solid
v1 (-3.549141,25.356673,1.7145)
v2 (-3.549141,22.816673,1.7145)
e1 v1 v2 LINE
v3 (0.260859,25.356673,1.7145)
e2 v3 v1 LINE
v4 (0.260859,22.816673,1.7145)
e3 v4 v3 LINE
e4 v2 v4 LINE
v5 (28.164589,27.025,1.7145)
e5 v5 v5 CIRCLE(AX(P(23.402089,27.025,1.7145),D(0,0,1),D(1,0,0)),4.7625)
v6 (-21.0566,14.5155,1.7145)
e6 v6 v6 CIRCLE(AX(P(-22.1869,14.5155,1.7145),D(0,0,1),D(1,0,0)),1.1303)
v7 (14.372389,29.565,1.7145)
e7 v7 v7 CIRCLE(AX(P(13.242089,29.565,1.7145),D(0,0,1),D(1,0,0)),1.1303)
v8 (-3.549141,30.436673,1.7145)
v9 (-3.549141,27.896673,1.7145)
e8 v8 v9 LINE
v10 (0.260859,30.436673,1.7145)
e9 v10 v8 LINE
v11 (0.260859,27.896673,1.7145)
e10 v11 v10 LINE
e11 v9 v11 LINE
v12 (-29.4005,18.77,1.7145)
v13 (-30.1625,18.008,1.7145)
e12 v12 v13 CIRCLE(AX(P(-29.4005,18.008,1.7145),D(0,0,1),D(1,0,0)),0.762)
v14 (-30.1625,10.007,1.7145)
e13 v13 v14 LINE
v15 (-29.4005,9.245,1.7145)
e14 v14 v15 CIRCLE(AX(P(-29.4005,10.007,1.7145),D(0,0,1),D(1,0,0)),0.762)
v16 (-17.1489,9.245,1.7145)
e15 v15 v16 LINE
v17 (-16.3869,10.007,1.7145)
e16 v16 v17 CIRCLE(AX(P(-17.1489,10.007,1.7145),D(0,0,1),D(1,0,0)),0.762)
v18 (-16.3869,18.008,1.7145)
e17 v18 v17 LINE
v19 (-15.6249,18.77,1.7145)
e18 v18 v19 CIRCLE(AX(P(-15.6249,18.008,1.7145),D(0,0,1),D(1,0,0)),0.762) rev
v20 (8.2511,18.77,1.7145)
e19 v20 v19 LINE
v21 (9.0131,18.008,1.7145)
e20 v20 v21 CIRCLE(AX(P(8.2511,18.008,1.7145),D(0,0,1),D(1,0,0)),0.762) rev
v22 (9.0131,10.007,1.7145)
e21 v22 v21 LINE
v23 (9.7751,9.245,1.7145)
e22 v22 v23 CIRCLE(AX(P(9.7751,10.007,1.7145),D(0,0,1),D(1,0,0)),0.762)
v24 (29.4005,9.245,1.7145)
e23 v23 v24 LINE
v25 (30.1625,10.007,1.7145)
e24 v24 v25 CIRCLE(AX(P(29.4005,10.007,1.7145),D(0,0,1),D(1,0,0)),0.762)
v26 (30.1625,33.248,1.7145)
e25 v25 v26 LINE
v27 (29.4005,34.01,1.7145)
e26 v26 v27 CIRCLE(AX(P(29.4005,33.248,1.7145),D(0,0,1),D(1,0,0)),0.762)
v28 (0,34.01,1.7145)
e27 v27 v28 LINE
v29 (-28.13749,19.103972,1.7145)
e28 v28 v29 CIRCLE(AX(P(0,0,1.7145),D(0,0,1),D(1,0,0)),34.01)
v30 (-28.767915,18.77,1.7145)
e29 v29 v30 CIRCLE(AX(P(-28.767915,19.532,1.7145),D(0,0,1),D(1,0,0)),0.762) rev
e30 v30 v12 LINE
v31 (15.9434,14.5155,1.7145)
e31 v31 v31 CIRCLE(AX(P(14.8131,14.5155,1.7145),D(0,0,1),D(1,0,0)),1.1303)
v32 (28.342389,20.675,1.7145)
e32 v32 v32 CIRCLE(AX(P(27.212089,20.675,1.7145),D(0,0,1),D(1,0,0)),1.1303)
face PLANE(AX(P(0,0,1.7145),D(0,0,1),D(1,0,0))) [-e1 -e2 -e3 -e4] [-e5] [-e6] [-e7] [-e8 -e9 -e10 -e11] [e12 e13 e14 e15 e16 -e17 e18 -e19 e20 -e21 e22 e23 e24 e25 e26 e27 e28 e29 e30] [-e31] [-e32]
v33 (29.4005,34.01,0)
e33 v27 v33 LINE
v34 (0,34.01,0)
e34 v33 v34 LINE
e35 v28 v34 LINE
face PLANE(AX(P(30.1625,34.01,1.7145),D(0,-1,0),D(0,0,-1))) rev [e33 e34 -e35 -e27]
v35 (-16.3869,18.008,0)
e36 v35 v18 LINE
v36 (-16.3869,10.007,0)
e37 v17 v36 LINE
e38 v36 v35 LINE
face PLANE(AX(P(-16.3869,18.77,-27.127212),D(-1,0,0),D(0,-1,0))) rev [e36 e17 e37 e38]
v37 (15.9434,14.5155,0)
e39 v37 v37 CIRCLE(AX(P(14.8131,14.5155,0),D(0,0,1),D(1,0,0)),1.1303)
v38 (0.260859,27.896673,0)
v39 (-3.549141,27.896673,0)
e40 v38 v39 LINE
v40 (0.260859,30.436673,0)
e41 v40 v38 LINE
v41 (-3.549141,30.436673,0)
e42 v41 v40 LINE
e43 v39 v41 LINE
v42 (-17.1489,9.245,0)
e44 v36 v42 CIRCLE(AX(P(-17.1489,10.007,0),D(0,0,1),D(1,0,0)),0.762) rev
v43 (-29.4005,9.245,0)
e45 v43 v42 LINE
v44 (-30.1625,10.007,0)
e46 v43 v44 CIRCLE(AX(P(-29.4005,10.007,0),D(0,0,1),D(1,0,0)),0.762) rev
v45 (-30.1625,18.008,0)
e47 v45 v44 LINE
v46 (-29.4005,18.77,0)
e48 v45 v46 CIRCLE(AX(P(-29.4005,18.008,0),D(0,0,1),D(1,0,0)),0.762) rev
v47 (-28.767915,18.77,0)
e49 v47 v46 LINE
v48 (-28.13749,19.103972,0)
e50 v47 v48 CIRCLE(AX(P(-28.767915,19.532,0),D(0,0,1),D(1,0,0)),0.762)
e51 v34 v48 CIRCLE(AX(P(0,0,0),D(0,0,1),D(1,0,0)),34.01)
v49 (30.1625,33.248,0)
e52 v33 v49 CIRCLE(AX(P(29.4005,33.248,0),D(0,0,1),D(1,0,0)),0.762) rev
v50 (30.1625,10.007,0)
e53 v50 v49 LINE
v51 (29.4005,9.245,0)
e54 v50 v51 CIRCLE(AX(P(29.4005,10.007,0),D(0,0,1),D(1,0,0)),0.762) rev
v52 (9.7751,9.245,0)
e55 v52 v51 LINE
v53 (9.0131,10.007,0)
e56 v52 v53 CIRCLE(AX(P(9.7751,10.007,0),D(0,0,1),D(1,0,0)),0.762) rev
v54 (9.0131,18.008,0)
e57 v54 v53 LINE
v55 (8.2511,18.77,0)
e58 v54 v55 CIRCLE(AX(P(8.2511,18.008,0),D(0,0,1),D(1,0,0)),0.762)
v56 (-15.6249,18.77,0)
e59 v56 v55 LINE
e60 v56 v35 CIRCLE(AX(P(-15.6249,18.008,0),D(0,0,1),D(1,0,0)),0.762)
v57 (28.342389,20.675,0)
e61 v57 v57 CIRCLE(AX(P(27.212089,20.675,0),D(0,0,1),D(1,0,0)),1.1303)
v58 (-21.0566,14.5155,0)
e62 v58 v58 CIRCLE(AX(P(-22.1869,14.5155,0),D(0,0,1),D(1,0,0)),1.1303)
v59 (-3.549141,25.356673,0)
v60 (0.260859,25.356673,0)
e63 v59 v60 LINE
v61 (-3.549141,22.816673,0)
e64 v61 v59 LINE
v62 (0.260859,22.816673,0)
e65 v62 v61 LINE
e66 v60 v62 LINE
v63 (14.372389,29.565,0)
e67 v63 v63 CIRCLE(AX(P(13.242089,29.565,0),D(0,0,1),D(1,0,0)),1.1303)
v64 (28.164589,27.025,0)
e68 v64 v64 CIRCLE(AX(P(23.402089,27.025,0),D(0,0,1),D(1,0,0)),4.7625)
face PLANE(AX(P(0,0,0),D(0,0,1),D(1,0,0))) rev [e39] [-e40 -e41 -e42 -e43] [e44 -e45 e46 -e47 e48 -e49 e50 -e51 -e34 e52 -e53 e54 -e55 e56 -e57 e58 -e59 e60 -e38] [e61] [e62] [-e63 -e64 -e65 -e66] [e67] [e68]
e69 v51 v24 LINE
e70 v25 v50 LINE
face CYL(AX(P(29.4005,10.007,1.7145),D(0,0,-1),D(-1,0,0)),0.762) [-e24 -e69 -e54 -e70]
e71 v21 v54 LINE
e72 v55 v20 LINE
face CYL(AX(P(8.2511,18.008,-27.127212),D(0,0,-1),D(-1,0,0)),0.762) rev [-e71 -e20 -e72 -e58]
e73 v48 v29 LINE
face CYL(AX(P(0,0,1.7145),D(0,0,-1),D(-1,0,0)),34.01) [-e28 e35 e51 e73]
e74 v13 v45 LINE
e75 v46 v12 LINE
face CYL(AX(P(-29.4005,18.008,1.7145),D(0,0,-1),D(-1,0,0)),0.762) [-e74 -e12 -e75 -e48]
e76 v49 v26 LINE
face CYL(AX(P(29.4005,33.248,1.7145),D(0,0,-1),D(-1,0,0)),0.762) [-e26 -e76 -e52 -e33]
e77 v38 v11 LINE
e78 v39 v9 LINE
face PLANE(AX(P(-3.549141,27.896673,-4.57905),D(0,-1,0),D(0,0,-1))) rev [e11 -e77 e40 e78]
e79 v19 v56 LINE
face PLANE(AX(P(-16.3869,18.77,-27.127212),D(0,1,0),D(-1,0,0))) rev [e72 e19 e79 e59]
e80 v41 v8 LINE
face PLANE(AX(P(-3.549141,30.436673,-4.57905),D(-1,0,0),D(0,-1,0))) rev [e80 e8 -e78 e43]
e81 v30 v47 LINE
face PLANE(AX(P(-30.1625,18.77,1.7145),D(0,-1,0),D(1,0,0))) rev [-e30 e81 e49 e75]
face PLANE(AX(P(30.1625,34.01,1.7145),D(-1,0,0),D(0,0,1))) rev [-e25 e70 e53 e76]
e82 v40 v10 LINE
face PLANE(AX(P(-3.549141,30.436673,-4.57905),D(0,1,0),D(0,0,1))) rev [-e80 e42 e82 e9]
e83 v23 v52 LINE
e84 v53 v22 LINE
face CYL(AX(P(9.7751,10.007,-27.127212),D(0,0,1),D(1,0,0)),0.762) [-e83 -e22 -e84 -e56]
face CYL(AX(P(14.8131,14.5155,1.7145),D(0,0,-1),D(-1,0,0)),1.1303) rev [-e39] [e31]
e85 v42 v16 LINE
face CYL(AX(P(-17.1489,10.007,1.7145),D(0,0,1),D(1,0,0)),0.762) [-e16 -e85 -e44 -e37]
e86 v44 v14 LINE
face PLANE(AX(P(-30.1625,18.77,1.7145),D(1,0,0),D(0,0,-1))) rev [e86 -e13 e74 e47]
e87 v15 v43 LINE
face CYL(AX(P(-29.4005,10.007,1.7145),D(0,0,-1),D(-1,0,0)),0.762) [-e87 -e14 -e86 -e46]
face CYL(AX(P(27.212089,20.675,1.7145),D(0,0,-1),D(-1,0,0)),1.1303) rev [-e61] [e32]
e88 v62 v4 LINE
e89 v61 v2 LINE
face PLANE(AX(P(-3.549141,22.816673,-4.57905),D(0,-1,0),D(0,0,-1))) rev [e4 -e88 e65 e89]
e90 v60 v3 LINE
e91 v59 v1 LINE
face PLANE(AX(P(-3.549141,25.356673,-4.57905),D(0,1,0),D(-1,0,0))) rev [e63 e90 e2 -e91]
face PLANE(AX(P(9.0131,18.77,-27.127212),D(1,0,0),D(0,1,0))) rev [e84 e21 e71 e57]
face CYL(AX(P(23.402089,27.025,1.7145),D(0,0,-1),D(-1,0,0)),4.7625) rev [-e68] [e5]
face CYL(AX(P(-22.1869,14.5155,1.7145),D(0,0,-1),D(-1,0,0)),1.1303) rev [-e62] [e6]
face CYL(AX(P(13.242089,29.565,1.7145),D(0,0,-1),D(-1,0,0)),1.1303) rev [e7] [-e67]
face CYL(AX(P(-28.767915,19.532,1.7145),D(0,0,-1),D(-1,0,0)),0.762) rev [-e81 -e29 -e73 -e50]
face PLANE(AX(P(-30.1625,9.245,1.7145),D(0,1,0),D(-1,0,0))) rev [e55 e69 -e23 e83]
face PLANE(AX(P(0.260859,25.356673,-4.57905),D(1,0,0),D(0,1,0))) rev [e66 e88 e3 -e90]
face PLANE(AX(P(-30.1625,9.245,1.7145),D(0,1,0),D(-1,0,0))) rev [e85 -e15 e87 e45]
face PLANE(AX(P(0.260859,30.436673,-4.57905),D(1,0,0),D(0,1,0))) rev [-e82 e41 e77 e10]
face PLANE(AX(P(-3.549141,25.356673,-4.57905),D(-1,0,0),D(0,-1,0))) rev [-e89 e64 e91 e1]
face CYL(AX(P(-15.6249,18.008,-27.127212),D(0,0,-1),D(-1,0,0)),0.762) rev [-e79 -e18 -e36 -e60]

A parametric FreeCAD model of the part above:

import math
import FreeCAD as App
import Part
import Sketcher

V = App.Vector
Q = App.Units.Quantity


def edges_at(feature, points):
    """Names of the edges that pass closest to the given points."""
    edges = feature.Shape.Edges
    near = lambda p: min(range(len(edges)), key=lambda i: edges[i].distToShape(Part.Vertex(*p))[0])
    return sorted({f"Edge{near(p) + 1}" for p in points})


def add_polygon(sketch, points):
    """Adds a closed chain of lines whose ends are joined by coincident constraints."""
    first, n = sketch.GeometryCount, len(points)
    for a, b in zip(points, points[1:] + points[:1]):
        sketch.addGeometry(Part.LineSegment(App.Vector(*a, 0), App.Vector(*b, 0)), False)
    for i in range(n):
        sketch.addConstraint(Sketcher.Constraint("Coincident", first + i, 2, first + (i + 1) % n, 1))

doc = App.newDocument("Part")
body = doc.addObject("PartDesign::Body", "Body")

# Sketch on XY plane
sketch1 = body.newObject("Sketcher::SketchObject", "Sketch")
sketch1.AttachmentSupport = (doc.getObject("XY_Plane"), [""])
sketch1.MapMode = "FlatFace"
sketch1.addGeometry([
    Part.LineSegment(V(-30.2, 9.2, 0), V(30.2, 9.2, 0)),  # 0
    Part.LineSegment(V(30.2, 9.2, 0), V(30.2, 34, 0)),  # 1
    Part.LineSegment(V(30.2, 34, 0), V(0, 34, 0)),  # 2
    Part.ArcOfCircle(Part.Circle(V(0, 0, 0), V(0, 0, 1), 34), math.radians(90), math.radians(147)),  # 3
    Part.LineSegment(V(-28.4, 18.8, 0), V(-30.2, 18.8, 0)),  # 4
    Part.LineSegment(V(-30.2, 18.8, 0), V(-30.2, 9.2, 0)),  # 5
    Part.Circle(V(-22.2, 14.5, 0), V(0, 0, 1), 1.1),  # 6
    Part.Circle(V(14.8, 14.5, 0), V(0, 0, 1), 1.1),  # 7
    Part.Circle(V(27.2, 20.7, 0), V(0, 0, 1), 1.1),  # 8
    Part.Circle(V(23.4, 27, 0), V(0, 0, 1), 4.8),  # 9
    Part.Circle(V(13.2, 29.6, 0), V(0, 0, 1), 1.1),  # 10
], False)
sketch1.addConstraint([
    Sketcher.Constraint("Coincident", 0, 2, 1, 1),
    Sketcher.Constraint("Coincident", 1, 2, 2, 1),
    Sketcher.Constraint("Tangent", 2, 2, 3, 1),
    Sketcher.Constraint("Coincident", 3, 2, 4, 1),
    Sketcher.Constraint("Coincident", 4, 2, 5, 1),
    Sketcher.Constraint("Coincident", 5, 2, 0, 1),
    Sketcher.Constraint("Horizontal", 0),
    Sketcher.Constraint("Vertical", 1),
    Sketcher.Constraint("Horizontal", 2),
    Sketcher.Constraint("Horizontal", 4),
    Sketcher.Constraint("Vertical", 5),
    Sketcher.Constraint("Coincident", 3, 3, -1, 1),
    Sketcher.Constraint("Equal", 6, 7),
    Sketcher.Constraint("Equal", 7, 8),
    Sketcher.Constraint("Equal", 8, 10),
    Sketcher.Constraint("Horizontal", 6, 3, 7, 3),
    Sketcher.Constraint("Diameter", 6, Q("0.089 in")),
    Sketcher.Constraint("Diameter", 9, Q("0.375 in")),
    Sketcher.Constraint("DistanceX", 10, 3, 9, 3, Q("0.4 in")),
    Sketcher.Constraint("DistanceY", 9, 3, 10, 3, Q("0.1 in")),
    Sketcher.Constraint("DistanceY", 0, 2, 9, 3, Q("0.7 in")),
    Sketcher.Constraint("DistanceY", 3, 2, 2, 2, Q("0.6 in")),
    Sketcher.Constraint("DistanceX", 0, 1, 0, 2, Q("2.375 in")),
    Sketcher.Constraint("DistanceX", 2, 2, 2, 1, Q("1.1875 in")),
    Sketcher.Constraint("DistanceY", 1, 1, 1, 2, Q("0.975 in")),
    Sketcher.Constraint("Radius", 3, Q("34.01 mm")),
    Sketcher.Constraint("DistanceX", 9, 3, 8, 3, Q("0.15 in")),
    Sketcher.Constraint("DistanceY", 8, 3, 9, 3, Q("0.25 in")),
    Sketcher.Constraint("DistanceX", 4, 2, 6, 3, Q("0.314 in")),
    Sketcher.Constraint("DistanceY", 7, 3, 8, 3, Q("0.2425 in")),
    Sketcher.Constraint("DistanceX", -1, 1, 7, 3, Q("14.8131 mm")),
    Sketcher.Constraint("DistanceX", -1, 1, 8, 3, Q("27.212089 mm")),
])
pad1 = body.newObject("PartDesign::Pad", "Pad")
pad1.Profile = sketch1
pad1.Length = Q("0.0675 in")

# Sketch on XY plane
sketch2 = body.newObject("Sketcher::SketchObject", "Sketch001")
sketch2.AttachmentSupport = (doc.getObject("XY_Plane"), [""])
sketch2.MapMode = "FlatFace"
sketch2.AttachmentOffset = App.Placement(V(0, 0, 0.0675 * 25.4), App.Rotation())
add_polygon(sketch2, [(-3.5, 30.4), (-3.5, 27.9), (0.3, 27.9), (0.3, 30.4)])  # lines 0-3
add_polygon(sketch2, [(-3.5, 25.4), (-3.5, 22.8), (0.3, 22.8), (0.3, 25.4)])  # lines 4-7
sketch2.addConstraint([
    Sketcher.Constraint("Vertical", 0),
    Sketcher.Constraint("Horizontal", 1),
    Sketcher.Constraint("Vertical", 2),
    Sketcher.Constraint("Horizontal", 3),
    Sketcher.Constraint("Vertical", 4),
    Sketcher.Constraint("Horizontal", 5),
    Sketcher.Constraint("Vertical", 6),
    Sketcher.Constraint("Horizontal", 7),
    Sketcher.Constraint("Vertical", 3, 2, 4, 2),
    Sketcher.Constraint("Vertical", 2, 2, 5, 2),
    Sketcher.Constraint("Equal", 2, 4),
    Sketcher.Constraint("DistanceY", 0, 2, 0, 1, Q("0.1 in")),
    Sketcher.Constraint("DistanceX", 1, 1, 1, 2, Q("0.15 in")),
    Sketcher.Constraint("DistanceY", 4, 2, 0, 2, Q("0.2 in")),
    Sketcher.Constraint("DistanceX", 0, 2, -1, 1, Q("3.549141 mm")),
    Sketcher.Constraint("DistanceY", -1, 1, 0, 2, Q("27.896673 mm")),
])
pocket1 = body.newObject("PartDesign::Pocket", "Pocket")
pocket1.Profile = sketch2
pocket1.Length = Q("0.0675 in")

# Sketch on XY plane
sketch3 = body.newObject("Sketcher::SketchObject", "Sketch002")
sketch3.AttachmentSupport = (doc.getObject("XY_Plane"), [""])
sketch3.MapMode = "FlatFace"
sketch3.AttachmentOffset = App.Placement(V(0, 0, 0.0675 * 25.4), App.Rotation())
add_polygon(sketch3, [(-16, 19), (-16, 9), (9, 9), (9, 19)])  # lines 0-3
sketch3.addConstraint([
    Sketcher.Constraint("Vertical", 0),
    Sketcher.Constraint("Horizontal", 1),
    Sketcher.Constraint("Vertical", 2),
    Sketcher.Constraint("Horizontal", 3),
    Sketcher.Constraint("DistanceX", 1, 1, 1, 2, Q("1 in")),
    Sketcher.Constraint("DistanceY", 0, 2, 0, 1, Q("0.375 in")),
    Sketcher.Constraint("DistanceX", 0, 2, -1, 1, Q("16.3869 mm")),
    Sketcher.Constraint("DistanceY", -1, 1, 0, 2, Q("9.245 mm")),
])
pocket2 = body.newObject("PartDesign::Pocket", "Pocket001")
pocket2.Profile = sketch3
pocket2.Length = Q("0.0675 in")
doc.recompute()

fillet = body.newObject("PartDesign::Fillet", "Fillet")
fillet.Base = (pocket2, edges_at(pocket2, [
    (-28.361, 18.77, 0.857),
    (30.163, 34.01, 0.857),
    (30.163, 9.245, 0.857),
    (-30.163, 9.245, 0.857),
    (-30.163, 18.77, 0.857),
    (-16.387, 9.245, 0.857),
    (9.013, 9.245, 0.857),
]))
fillet.Radius = Q("0.03 in")
doc.recompute()

fillet2 = body.newObject("PartDesign::Fillet", "Fillet001")
fillet2.Base = (fillet, edges_at(fillet, [(-16.387, 18.77, 0.857), (9.013, 18.77, 0.857)]))
fillet2.Radius = Q("0.03 in")

doc.recompute()
